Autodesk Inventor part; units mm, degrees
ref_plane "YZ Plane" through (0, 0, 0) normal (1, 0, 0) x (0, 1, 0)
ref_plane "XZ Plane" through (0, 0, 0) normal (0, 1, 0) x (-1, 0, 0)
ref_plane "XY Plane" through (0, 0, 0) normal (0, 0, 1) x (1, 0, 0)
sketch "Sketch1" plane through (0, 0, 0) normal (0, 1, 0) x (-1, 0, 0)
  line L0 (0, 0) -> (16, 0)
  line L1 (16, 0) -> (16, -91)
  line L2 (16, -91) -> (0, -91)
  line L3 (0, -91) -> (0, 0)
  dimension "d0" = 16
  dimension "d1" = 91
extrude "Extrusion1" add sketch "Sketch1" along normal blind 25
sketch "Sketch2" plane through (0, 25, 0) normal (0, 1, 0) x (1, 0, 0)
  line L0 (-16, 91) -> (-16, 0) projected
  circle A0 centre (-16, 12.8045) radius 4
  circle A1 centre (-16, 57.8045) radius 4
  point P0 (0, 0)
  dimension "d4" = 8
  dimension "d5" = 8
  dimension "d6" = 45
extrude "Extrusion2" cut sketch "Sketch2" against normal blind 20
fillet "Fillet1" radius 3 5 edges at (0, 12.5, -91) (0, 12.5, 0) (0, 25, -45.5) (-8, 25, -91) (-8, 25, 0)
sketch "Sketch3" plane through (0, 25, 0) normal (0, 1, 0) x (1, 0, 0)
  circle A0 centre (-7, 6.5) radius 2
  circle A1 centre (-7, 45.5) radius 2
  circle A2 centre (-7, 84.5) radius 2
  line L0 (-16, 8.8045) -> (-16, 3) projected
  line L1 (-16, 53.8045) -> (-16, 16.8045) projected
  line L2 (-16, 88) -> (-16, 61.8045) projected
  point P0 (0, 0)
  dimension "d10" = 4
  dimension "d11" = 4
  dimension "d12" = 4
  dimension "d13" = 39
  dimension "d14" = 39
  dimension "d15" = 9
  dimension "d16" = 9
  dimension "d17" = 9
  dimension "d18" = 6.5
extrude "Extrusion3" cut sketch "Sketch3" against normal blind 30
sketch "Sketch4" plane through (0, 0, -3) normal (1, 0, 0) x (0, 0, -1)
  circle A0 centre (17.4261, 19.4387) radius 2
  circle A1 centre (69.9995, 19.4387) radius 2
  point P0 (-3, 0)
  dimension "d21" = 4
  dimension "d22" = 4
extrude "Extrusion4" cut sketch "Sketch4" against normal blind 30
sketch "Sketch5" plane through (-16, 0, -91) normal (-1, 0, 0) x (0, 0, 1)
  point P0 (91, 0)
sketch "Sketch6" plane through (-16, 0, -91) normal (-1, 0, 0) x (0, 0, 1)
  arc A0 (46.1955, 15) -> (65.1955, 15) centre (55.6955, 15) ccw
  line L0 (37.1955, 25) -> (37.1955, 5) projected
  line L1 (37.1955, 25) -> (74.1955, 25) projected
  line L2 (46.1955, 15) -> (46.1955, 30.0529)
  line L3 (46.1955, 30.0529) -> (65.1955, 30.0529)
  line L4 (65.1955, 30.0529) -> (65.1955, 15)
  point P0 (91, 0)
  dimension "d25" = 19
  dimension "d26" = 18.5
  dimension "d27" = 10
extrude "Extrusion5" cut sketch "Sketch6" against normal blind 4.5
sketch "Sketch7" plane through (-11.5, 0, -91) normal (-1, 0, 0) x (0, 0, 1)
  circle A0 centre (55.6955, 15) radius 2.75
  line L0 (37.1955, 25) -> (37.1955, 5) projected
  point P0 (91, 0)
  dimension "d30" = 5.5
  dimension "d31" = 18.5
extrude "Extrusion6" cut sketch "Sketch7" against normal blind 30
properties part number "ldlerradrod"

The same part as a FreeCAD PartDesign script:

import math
import FreeCAD as App
import Part
import Sketcher

V = App.Vector


def edges_at(feature, points):
    """Names of the edges that pass closest to the given points."""
    edges = feature.Shape.Edges
    near = lambda p: min(range(len(edges)), key=lambda i: edges[i].distToShape(Part.Vertex(*p))[0])
    return sorted({f"Edge{near(p) + 1}" for p in points})


def add_polygon(sketch, points):
    """Adds a closed chain of lines whose ends are joined by coincident constraints."""
    first, n = sketch.GeometryCount, len(points)
    for a, b in zip(points, points[1:] + points[:1]):
        sketch.addGeometry(Part.LineSegment(App.Vector(*a, 0), App.Vector(*b, 0)), False)
    for i in range(n):
        sketch.addConstraint(Sketcher.Constraint("Coincident", first + i, 2, first + (i + 1) % n, 1))

doc = App.newDocument("Part")
params = doc.addObject("Spreadsheet::Sheet", "Params")
for row, (alias, value) in enumerate([
    ("sketch1_width", "16 mm"),
    ("sketch1_height", "91 mm"),
    ("pad1_length", "25 mm"),
    ("sketch2_diameter", "8 mm"),
    ("pocket1_length", "20 mm"),
    ("fillet_radius", "3 mm"),
    ("sketch3_diameter", "4 mm"),
    ("pocket2_length", "30 mm"),
    ("sketch4_diameter", "4 mm"),
    ("pocket3_length", "30 mm"),
    ("sketch5_radius", "9.5 mm"),
    ("pocket4_length", "4.5 mm"),
    ("sketch6_diameter", "5.5 mm"),
    ("pocket5_length", "30 mm"),
], start=1):
    params.set(f"A{row}", alias)
    params.set(f"B{row}", "=" + value)
    params.setAlias(f"B{row}", alias)

body = doc.addObject("PartDesign::Body", "Body")

# Sketch on XZ plane
sketch1 = doc.addObject("Sketcher::SketchObject", "Sketch")
body.addObject(sketch1)
sketch1.AttachmentSupport = (doc.XZ_Plane, [""])
sketch1.MapMode = "FlatFace"
add_polygon(sketch1, [(-16, 0), (0, 0), (0, -91), (-16, -91)])  # lines 0-3
sketch1.addConstraint([
    Sketcher.Constraint("Horizontal", 0),
    Sketcher.Constraint("Vertical", 1),
    Sketcher.Constraint("Horizontal", 2),
    Sketcher.Constraint("Vertical", 3),
    Sketcher.Constraint("Coincident", 0, 2, -1, 1),
    Sketcher.Constraint("DistanceX", 0, 1, 0, 2, 16.0),
    Sketcher.Constraint("DistanceY", 1, 2, 1, 1, 91.0),
])
sketch1.setExpression("Constraints[9]", "Params.sketch1_width")
sketch1.setExpression("Constraints[10]", "Params.sketch1_height")
pad1 = doc.addObject("PartDesign::Pad", "Pad")
body.addObject(pad1)
pad1.Profile = sketch1
pad1.setExpression("Length", "Params.pad1_length")
pad1.Reversed = True

# Sketch on XZ plane
sketch2 = doc.addObject("Sketcher::SketchObject", "Sketch001")
body.addObject(sketch2)
sketch2.AttachmentSupport = (doc.XZ_Plane, [""])
sketch2.MapMode = "FlatFace"
sketch2.AttachmentOffset = App.Placement(V(0, 0, -25), App.Rotation())
sketch2.addGeometry([
    Part.Circle(V(-16, -57.8, 0), V(0, 0, 1), 4),
    Part.Circle(V(-16, -12.8, 0), V(0, 0, 1), 4),
], False)
sketch2.addConstraint([
    Sketcher.Constraint("Equal", 0, 1),
    Sketcher.Constraint("Vertical", 0, 3, 1, 3),
    Sketcher.Constraint("Diameter", 0, 8.0),
    Sketcher.Constraint("DistanceY", 0, 3, 1, 3, 45.0),
    Sketcher.Constraint("DistanceX", 0, 3, -1, 1, 16.0),
    Sketcher.Constraint("DistanceY", 0, 3, -1, 1, 57.8045),
])
sketch2.setExpression("Constraints[2]", "Params.sketch2_diameter")
pocket1 = doc.addObject("PartDesign::Pocket", "Pocket")
body.addObject(pocket1)
pocket1.Profile = sketch2
pocket1.setExpression("Length", "Params.pocket1_length")
pocket1.Reversed = True
doc.recompute()

fillet = doc.addObject("PartDesign::Fillet", "Fillet")
body.addObject(fillet)
fillet.Base = (pocket1, edges_at(pocket1, [
    (0, 12.5, -91),
    (0, 12.5, 0),
    (0, 25, -45.5),
    (-8, 25, -91),
    (-8, 25, 0),
]))
fillet.setExpression("Radius", "Params.fillet_radius")

# Sketch on XZ plane
sketch3 = doc.addObject("Sketcher::SketchObject", "Sketch002")
body.addObject(sketch3)
sketch3.AttachmentSupport = (doc.XZ_Plane, [""])
sketch3.MapMode = "FlatFace"
sketch3.AttachmentOffset = App.Placement(V(0, 0, -25), App.Rotation())
sketch3.addGeometry([
    Part.Circle(V(-7, -6.5, 0), V(0, 0, 1), 2),
    Part.Circle(V(-7, -45.5, 0), V(0, 0, 1), 2),
    Part.Circle(V(-7, -84.5, 0), V(0, 0, 1), 2),
], False)
sketch3.addConstraint([
    Sketcher.Constraint("Equal", 0, 1),
    Sketcher.Constraint("Equal", 1, 2),
    Sketcher.Constraint("Vertical", 0, 3, 1, 3),
    Sketcher.Constraint("Vertical", 1, 3, 2, 3),
    Sketcher.Constraint("Diameter", 0, 4.0),
    Sketcher.Constraint("DistanceY", 1, 3, 0, 3, 39.0),
    Sketcher.Constraint("DistanceY", 2, 3, 1, 3, 39.0),
    Sketcher.Constraint("DistanceY", 0, 3, -1, 1, 6.5),
    Sketcher.Constraint("DistanceX", 0, 3, -1, 1, 7.0),
])
sketch3.setExpression("Constraints[4]", "Params.sketch3_diameter")
pocket2 = doc.addObject("PartDesign::Pocket", "Pocket001")
body.addObject(pocket2)
pocket2.Profile = sketch3
pocket2.setExpression("Length", "Params.pocket2_length")
pocket2.Reversed = True

# Sketch on YZ plane
sketch4 = doc.addObject("Sketcher::SketchObject", "Sketch003")
body.addObject(sketch4)
sketch4.AttachmentSupport = (doc.YZ_Plane, [""])
sketch4.MapMode = "FlatFace"
sketch4.addGeometry([
    Part.Circle(V(19.4, -20.4, 0), V(0, 0, 1), 2),
    Part.Circle(V(19.4, -73, 0), V(0, 0, 1), 2),
], False)
sketch4.addConstraint([
    Sketcher.Constraint("Equal", 0, 1),
    Sketcher.Constraint("Vertical", 0, 3, 1, 3),
    Sketcher.Constraint("Diameter", 0, 4.0),
    Sketcher.Constraint("DistanceY", 0, 3, -1, 1, 20.426),
    Sketcher.Constraint("DistanceX", -1, 1, 0, 3, 19.4387),
    Sketcher.Constraint("DistanceY", 1, 3, -1, 1, 72.9995),
])
sketch4.setExpression("Constraints[2]", "Params.sketch4_diameter")
pocket3 = doc.addObject("PartDesign::Pocket", "Pocket002")
body.addObject(pocket3)
pocket3.Profile = sketch4
pocket3.setExpression("Length", "Params.pocket3_length")

# Sketch on YZ plane
sketch5 = doc.addObject("Sketcher::SketchObject", "Sketch004")
body.addObject(sketch5)
sketch5.AttachmentSupport = (doc.YZ_Plane, [""])
sketch5.MapMode = "FlatFace"
sketch5.AttachmentOffset = App.Placement(V(0, 0, -16), App.Rotation())
sketch5.addGeometry([
    Part.ArcOfCircle(Part.Circle(V(15, -35, 0), V(0, 0, 1), 10), math.radians(90), math.radians(270)),
    Part.LineSegment(V(15, -26, 0), V(30, -26, 0)),
    Part.LineSegment(V(30, -26, 0), V(30, -45, 0)),
    Part.LineSegment(V(30, -45, 0), V(15, -45, 0)),
], False)
sketch5.addConstraint([
    Sketcher.Constraint("Tangent", 0, 1, 1, 1),
    Sketcher.Constraint("Coincident", 1, 2, 2, 1),
    Sketcher.Constraint("Coincident", 2, 2, 3, 1),
    Sketcher.Constraint("Tangent", 3, 2, 0, 2),
    Sketcher.Constraint("Horizontal", 1),
    Sketcher.Constraint("Vertical", 2),
    Sketcher.Constraint("Horizontal", 3),
    Sketcher.Constraint("Radius", 0, 9.5),
    Sketcher.Constraint("DistanceX", -1, 1, 0, 3, 15.0),
    Sketcher.Constraint("DistanceX", 1, 1, 1, 2, 15.053),
    Sketcher.Constraint("DistanceY", 0, 3, -1, 1, 35.3045),
])
sketch5.setExpression("Constraints[7]", "Params.sketch5_radius")
pocket4 = doc.addObject("PartDesign::Pocket", "Pocket003")
body.addObject(pocket4)
pocket4.Profile = sketch5
pocket4.setExpression("Length", "Params.pocket4_length")
pocket4.Reversed = True

# Sketch on YZ plane
sketch6 = doc.addObject("Sketcher::SketchObject", "Sketch005")
body.addObject(sketch6)
sketch6.AttachmentSupport = (doc.YZ_Plane, [""])
sketch6.MapMode = "FlatFace"
sketch6.AttachmentOffset = App.Placement(V(0, 0, -11.5), App.Rotation())
sketch6.addGeometry(Part.Circle(V(15, -35.3, 0), V(0, 0, 1), 2.8), False)
sketch6.addConstraint([
    Sketcher.Constraint("Diameter", 0, 5.5),
    Sketcher.Constraint("DistanceX", -1, 1, 0, 3, 15.0),
    Sketcher.Constraint("DistanceY", 0, 3, -1, 1, 35.3045),
])
sketch6.setExpression("Constraints[0]", "Params.sketch6_diameter")
pocket5 = doc.addObject("PartDesign::Pocket", "Pocket004")
body.addObject(pocket5)
pocket5.Profile = sketch6
pocket5.setExpression("Length", "Params.pocket5_length")
pocket5.Reversed = True

doc.recompute()
